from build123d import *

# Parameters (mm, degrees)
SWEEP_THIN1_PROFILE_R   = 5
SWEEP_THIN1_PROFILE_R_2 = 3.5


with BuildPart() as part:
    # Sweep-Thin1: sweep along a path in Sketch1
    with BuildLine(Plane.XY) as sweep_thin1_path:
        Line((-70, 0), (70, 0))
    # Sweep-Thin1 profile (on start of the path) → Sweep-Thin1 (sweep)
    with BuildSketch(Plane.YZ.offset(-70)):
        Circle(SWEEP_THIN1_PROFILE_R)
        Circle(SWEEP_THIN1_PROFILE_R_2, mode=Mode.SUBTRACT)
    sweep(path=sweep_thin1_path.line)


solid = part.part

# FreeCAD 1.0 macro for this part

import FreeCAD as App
import Part
import Sketcher
from FreeCAD import Vector
Q = App.Units.Quantity

doc = App.newDocument("Part")
body = doc.addObject("PartDesign::Body", "Body")

sketch1 = body.newObject("Sketcher::SketchObject", "Sketch")
sketch1.AttachmentSupport = (doc.getObject("YZ_Plane"), [""])
sketch1.MapMode = "FlatFace"
sketch1.AttachmentOffset = App.Placement(Vector(0, 0, -70), App.Rotation())
sketch1.addGeometry(Part.Circle(Vector(0, 0, 0), Vector(0, 0, 1), 5), False)
sketch1.addGeometry(Part.Circle(Vector(0, 0, 0), Vector(0, 0, 1), 3.5), False)
sketch1.addConstraint(Sketcher.Constraint("Coincident", 0, 3, -1, 1))
sketch1.addConstraint(Sketcher.Constraint("Coincident", 1, 3, -1, 1))
sketch1.addConstraint(Sketcher.Constraint("Diameter", 0, Q("10 mm")))
sketch1.addConstraint(Sketcher.Constraint("Diameter", 1, Q("7 mm")))

sketch2 = body.newObject("Sketcher::SketchObject", "Sketch001")
sketch2.AttachmentSupport = (doc.getObject("XY_Plane"), [""])
sketch2.MapMode = "FlatFace"
sketch2.addGeometry(Part.LineSegment(Vector(-70, 0, 0), Vector(70, 0, 0)), False)
sketch2.addConstraint(Sketcher.Constraint("Horizontal", 0))
sketch2.addConstraint(Sketcher.Constraint("Symmetric", 0, 1, 0, 2, -1, 1))
sketch2.addConstraint(Sketcher.Constraint("DistanceX", 0, 1, 0, 2, Q("140 mm")))
doc.recompute()

additivepipe = body.newObject("PartDesign::AdditivePipe", "AdditivePipe")
additivepipe.Profile = sketch1
additivepipe.Spine = (sketch2, ["Edge1"])

doc.recompute()
